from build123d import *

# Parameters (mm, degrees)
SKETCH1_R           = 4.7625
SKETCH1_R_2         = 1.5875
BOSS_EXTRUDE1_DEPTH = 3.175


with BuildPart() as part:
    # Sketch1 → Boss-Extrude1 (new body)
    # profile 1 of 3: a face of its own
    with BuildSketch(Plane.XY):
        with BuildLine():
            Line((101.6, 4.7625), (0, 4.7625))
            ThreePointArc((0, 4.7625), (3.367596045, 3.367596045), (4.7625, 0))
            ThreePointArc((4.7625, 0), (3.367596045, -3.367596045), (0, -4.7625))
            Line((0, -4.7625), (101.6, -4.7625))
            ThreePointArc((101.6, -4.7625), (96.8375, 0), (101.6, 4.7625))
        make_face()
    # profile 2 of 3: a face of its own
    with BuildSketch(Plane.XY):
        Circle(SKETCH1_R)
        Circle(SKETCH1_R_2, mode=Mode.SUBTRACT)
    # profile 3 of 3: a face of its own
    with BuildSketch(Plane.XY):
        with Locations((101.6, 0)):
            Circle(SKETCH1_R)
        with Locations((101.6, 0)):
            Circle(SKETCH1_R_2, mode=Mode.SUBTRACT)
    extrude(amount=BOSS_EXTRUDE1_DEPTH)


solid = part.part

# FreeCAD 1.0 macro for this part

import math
import FreeCAD as App
import Part
import Sketcher
from FreeCAD import Vector
Q = App.Units.Quantity

doc = App.newDocument("Part")
params = doc.addObject("Spreadsheet::Sheet", "Params")
for row, (alias, value) in enumerate([
    ("sketch1_width", "4 in"),
    ("sketch1_diameter", "0.125 in"),
    ("sketch1_radius", "0.1875 in"),
    ("pad1_length", "0.125 in"),
], start=1):
    params.set(f"A{row}", alias)
    params.set(f"B{row}", "=" + value)
    params.setAlias(f"B{row}", alias)

body = doc.addObject("PartDesign::Body", "Body")

sketch1 = body.newObject("Sketcher::SketchObject", "Sketch")
sketch1.AttachmentSupport = (doc.getObject("XY_Plane"), [""])
sketch1.MapMode = "FlatFace"
sketch1.addGeometry(Part.LineSegment(Vector(101.6, 4.8, 0), Vector(0, 4.8, 0)), False)
sketch1.addGeometry(Part.ArcOfCircle(Part.Circle(Vector(0, 0, 0), Vector(0, 0, 1), 4.8), math.radians(90), math.radians(270)), False)
sketch1.addGeometry(Part.LineSegment(Vector(0, -4.8, 0), Vector(101.6, -4.8, 0)), False)
sketch1.addGeometry(Part.ArcOfCircle(Part.Circle(Vector(101.6, 0, 0), Vector(0, 0, 1), 4.8), math.radians(-90), math.radians(90)), False)
sketch1.addGeometry(Part.Circle(Vector(0, 0, 0), Vector(0, 0, 1), 1.6), False)
sketch1.addGeometry(Part.Circle(Vector(101.6, 0, 0), Vector(0, 0, 1), 1.6), False)
sketch1.addConstraint(Sketcher.Constraint("Tangent", 0, 2, 1, 1))
sketch1.addConstraint(Sketcher.Constraint("Tangent", 1, 2, 2, 1))
sketch1.addConstraint(Sketcher.Constraint("Tangent", 2, 2, 3, 1))
sketch1.addConstraint(Sketcher.Constraint("Tangent", 3, 2, 0, 1))
sketch1.addConstraint(Sketcher.Constraint("Horizontal", 0))
sketch1.addConstraint(Sketcher.Constraint("Horizontal", 2))
sketch1.addConstraint(Sketcher.Constraint("Coincident", 1, 3, -1, 1))
sketch1.addConstraint(Sketcher.Constraint("Coincident", 4, 3, -1, 1))
sketch1.addConstraint(Sketcher.Constraint("Coincident", 5, 3, 3, 3))
sketch1.addConstraint(Sketcher.Constraint("Equal", 4, 5))
sketch1.addConstraint(Sketcher.Constraint("DistanceX", 0, 2, 0, 1, Q("4 in")))
sketch1.addConstraint(Sketcher.Constraint("Diameter", 4, Q("0.125 in")))
sketch1.addConstraint(Sketcher.Constraint("Radius", 1, Q("0.1875 in")))
sketch1.setExpression("Constraints[10]", "Params.sketch1_width")
sketch1.setExpression("Constraints[11]", "Params.sketch1_diameter")
sketch1.setExpression("Constraints[12]", "Params.sketch1_radius")
pad1 = body.newObject("PartDesign::Pad", "Pad")
pad1.Profile = sketch1
pad1.setExpression("Length", "Params.pad1_length")

doc.recompute()
